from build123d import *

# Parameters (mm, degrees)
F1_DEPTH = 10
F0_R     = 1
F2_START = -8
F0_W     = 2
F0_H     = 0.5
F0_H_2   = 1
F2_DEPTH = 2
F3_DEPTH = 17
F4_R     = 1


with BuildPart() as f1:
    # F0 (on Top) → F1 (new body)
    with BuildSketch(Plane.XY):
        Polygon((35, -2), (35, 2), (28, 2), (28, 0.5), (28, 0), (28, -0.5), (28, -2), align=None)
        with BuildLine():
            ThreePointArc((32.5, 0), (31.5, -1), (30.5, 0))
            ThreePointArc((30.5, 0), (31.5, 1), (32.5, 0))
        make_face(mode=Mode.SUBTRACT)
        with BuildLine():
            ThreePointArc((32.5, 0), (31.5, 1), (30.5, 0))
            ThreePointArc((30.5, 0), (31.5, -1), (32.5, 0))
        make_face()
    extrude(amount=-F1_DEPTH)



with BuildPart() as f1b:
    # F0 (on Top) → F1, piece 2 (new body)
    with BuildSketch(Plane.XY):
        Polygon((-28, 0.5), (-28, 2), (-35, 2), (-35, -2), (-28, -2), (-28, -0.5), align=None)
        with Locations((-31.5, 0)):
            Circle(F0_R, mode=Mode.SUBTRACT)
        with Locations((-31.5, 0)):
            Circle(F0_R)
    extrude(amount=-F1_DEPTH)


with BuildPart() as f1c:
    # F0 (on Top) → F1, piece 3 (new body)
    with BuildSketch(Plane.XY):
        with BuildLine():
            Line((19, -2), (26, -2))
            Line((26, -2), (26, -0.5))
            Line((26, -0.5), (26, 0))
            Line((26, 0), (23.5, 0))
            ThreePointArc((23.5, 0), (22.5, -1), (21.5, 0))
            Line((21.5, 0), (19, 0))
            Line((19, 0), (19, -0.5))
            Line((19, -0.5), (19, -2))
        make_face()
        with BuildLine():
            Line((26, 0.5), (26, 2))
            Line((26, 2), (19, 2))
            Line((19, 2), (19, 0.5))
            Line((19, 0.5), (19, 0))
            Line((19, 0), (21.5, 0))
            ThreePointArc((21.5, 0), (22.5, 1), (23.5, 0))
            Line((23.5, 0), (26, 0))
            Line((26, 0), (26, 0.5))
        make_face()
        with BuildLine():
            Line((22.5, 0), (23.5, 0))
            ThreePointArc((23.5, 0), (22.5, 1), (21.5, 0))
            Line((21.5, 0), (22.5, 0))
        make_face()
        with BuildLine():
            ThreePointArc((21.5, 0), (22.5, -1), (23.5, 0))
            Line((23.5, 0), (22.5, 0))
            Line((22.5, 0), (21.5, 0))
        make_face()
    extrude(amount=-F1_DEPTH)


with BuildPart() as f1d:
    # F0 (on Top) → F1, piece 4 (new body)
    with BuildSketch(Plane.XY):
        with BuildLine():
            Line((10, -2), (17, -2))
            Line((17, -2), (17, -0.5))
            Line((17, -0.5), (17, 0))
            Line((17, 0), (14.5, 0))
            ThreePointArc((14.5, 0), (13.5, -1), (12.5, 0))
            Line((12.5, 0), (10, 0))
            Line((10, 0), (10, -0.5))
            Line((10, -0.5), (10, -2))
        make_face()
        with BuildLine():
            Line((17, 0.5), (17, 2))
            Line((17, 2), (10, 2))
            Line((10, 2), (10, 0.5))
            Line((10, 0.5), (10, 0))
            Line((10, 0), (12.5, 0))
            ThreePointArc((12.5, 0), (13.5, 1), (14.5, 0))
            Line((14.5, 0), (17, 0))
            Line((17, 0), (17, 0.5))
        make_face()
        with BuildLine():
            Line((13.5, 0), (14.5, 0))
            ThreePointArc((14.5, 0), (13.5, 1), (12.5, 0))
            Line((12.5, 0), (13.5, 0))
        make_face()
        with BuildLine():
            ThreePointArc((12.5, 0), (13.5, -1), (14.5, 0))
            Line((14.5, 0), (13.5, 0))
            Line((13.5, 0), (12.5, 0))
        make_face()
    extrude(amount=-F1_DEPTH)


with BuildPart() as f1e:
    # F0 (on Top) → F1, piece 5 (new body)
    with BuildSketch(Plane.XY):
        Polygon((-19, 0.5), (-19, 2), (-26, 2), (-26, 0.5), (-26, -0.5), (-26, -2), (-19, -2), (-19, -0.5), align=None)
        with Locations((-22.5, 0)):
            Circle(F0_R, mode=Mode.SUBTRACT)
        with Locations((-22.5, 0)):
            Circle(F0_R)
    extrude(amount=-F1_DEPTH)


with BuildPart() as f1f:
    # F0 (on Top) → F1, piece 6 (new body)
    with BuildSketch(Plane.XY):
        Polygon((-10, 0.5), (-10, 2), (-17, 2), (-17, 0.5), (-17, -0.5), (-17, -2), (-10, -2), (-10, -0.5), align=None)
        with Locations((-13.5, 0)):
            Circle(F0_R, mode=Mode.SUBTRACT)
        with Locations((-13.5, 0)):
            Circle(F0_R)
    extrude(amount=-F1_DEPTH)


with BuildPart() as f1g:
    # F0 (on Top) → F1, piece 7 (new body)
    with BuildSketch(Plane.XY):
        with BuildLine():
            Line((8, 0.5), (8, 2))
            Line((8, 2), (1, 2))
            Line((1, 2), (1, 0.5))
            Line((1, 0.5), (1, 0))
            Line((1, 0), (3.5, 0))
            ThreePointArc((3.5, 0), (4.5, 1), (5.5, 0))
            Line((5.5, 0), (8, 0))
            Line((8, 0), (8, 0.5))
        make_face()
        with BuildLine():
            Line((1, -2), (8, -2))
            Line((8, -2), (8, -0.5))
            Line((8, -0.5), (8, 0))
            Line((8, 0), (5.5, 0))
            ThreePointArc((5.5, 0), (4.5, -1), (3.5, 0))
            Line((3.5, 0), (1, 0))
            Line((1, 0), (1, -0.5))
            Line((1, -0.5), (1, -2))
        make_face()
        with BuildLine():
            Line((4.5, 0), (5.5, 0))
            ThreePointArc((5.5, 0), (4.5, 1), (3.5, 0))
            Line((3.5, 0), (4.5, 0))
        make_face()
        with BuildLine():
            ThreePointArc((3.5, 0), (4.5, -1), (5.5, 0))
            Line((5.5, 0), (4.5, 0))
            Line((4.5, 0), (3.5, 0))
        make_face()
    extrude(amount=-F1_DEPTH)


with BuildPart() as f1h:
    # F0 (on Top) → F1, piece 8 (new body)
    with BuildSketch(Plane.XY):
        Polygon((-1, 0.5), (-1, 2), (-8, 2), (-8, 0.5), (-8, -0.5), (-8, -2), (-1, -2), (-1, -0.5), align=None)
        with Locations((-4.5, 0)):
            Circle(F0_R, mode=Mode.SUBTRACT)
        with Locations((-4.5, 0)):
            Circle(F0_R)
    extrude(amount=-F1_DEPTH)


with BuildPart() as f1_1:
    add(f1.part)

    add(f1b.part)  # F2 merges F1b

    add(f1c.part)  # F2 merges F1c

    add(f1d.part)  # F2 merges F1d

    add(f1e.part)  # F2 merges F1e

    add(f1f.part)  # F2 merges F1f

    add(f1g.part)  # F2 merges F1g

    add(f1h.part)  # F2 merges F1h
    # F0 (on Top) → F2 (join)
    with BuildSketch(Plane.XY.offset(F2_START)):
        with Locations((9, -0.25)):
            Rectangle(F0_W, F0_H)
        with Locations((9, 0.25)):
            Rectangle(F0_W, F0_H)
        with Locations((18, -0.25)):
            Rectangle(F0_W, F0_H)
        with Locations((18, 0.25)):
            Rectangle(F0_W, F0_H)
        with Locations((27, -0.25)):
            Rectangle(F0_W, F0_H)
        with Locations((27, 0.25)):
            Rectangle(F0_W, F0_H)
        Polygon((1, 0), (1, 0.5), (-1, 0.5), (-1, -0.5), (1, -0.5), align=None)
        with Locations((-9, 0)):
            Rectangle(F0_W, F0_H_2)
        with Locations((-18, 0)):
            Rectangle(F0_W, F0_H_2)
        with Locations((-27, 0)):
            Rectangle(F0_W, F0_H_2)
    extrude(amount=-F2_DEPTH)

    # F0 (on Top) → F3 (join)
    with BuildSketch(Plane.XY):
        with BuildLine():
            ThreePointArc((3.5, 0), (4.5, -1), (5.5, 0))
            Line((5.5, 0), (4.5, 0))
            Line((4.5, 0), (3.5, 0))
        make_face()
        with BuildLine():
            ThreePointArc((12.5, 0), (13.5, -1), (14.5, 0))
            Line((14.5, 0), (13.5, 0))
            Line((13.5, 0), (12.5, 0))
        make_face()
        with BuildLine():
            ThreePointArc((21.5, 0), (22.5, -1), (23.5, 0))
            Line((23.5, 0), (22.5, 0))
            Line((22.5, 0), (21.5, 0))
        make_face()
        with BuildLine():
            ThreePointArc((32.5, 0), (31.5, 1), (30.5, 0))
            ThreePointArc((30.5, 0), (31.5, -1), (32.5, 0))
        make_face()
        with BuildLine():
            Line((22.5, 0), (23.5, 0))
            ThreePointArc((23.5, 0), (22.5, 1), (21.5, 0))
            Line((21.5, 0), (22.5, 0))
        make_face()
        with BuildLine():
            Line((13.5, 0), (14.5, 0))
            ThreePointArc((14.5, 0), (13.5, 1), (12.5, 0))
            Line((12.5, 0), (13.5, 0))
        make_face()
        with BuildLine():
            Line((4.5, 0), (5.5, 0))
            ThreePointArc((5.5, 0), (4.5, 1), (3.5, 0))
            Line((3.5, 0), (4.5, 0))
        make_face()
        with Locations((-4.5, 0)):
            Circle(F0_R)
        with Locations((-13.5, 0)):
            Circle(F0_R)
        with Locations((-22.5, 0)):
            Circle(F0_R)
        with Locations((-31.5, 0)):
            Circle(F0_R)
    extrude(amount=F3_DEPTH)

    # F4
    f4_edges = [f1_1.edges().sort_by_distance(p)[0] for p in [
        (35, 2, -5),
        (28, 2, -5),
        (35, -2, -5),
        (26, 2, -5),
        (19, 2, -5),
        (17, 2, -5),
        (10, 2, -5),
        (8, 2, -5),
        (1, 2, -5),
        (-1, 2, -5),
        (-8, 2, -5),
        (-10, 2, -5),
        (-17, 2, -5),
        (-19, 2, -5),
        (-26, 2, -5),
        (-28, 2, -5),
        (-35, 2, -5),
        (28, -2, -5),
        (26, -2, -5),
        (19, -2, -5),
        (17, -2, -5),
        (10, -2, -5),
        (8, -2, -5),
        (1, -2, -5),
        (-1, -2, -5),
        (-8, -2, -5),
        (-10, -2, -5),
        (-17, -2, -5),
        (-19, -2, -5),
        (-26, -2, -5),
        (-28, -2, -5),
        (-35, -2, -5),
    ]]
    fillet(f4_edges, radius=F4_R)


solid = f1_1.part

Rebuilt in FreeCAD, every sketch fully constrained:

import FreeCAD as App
import Part
import Sketcher
from FreeCAD import Vector


def edges_at(feature, points):
    """Names of the edges that pass closest to the given points."""
    edges = feature.Shape.Edges
    near = lambda p: min(range(len(edges)), key=lambda i: edges[i].distToShape(Part.Vertex(*p))[0])
    return sorted({f"Edge{near(p) + 1}" for p in points})


def add_polygon(sketch, points):
    """Adds a closed chain of lines whose ends are joined by coincident constraints."""
    first, n = sketch.GeometryCount, len(points)
    for a, b in zip(points, points[1:] + points[:1]):
        sketch.addGeometry(Part.LineSegment(App.Vector(*a, 0), App.Vector(*b, 0)), False)
    for i in range(n):
        sketch.addConstraint(Sketcher.Constraint("Coincident", first + i, 2, first + (i + 1) % n, 1))

doc = App.newDocument("Part")
body = doc.addObject("PartDesign::Body", "Body")

sketch1 = body.newObject("Sketcher::SketchObject", "Sketch")
sketch1.AttachmentSupport = (doc.getObject("XY_Plane"), [""])
sketch1.MapMode = "FlatFace"
add_polygon(sketch1, [(35, -2), (35, 2), (28, 2), (28, -2)])
sketch1.addConstraint(Sketcher.Constraint("Vertical", 0))
sketch1.addConstraint(Sketcher.Constraint("Horizontal", 1))
sketch1.addConstraint(Sketcher.Constraint("Vertical", 2))
sketch1.addConstraint(Sketcher.Constraint("Horizontal", 3))
sketch1.addConstraint(Sketcher.Constraint("DistanceX", 1, 2, 1, 1, 7.0))
sketch1.addConstraint(Sketcher.Constraint("DistanceY", 0, 1, 0, 2, 4.0))
sketch1.addConstraint(Sketcher.Constraint("DistanceX", -1, 1, 0, 2, 35.0))
sketch1.addConstraint(Sketcher.Constraint("DistanceY", -1, 1, 0, 2, 2.0))
pad1 = body.newObject("PartDesign::Pad", "Pad")
pad1.Profile = sketch1
pad1.Length = 10
pad1.Reversed = True
body2 = doc.addObject("PartDesign::Body", "Body001")

sketch2 = body2.newObject("Sketcher::SketchObject", "Sketch001")
sketch2.AttachmentSupport = (doc.getObject("XY_Plane001"), [""])
sketch2.MapMode = "FlatFace"
add_polygon(sketch2, [(-28, 2), (-35, 2), (-35, -2), (-28, -2)])
sketch2.addConstraint(Sketcher.Constraint("Horizontal", 0))
sketch2.addConstraint(Sketcher.Constraint("Vertical", 1))
sketch2.addConstraint(Sketcher.Constraint("Horizontal", 2))
sketch2.addConstraint(Sketcher.Constraint("Vertical", 3))
sketch2.addConstraint(Sketcher.Constraint("DistanceX", 0, 2, 0, 1, 7.0))
sketch2.addConstraint(Sketcher.Constraint("DistanceY", 1, 2, 1, 1, 4.0))
sketch2.addConstraint(Sketcher.Constraint("DistanceX", 0, 2, -1, 1, 35.0))
sketch2.addConstraint(Sketcher.Constraint("DistanceY", -1, 1, 0, 2, 2.0))
pad2 = body2.newObject("PartDesign::Pad", "Pad001")
pad2.Profile = sketch2
pad2.Length = 10
pad2.Reversed = True
body3 = doc.addObject("PartDesign::Body", "Body002")

sketch3 = body3.newObject("Sketcher::SketchObject", "Sketch002")
sketch3.AttachmentSupport = (doc.getObject("XY_Plane002"), [""])
sketch3.MapMode = "FlatFace"
add_polygon(sketch3, [(19, -2), (26, -2), (26, 2), (19, 2)])
sketch3.addConstraint(Sketcher.Constraint("Horizontal", 0))
sketch3.addConstraint(Sketcher.Constraint("Vertical", 1))
sketch3.addConstraint(Sketcher.Constraint("Horizontal", 2))
sketch3.addConstraint(Sketcher.Constraint("Vertical", 3))
sketch3.addConstraint(Sketcher.Constraint("DistanceX", 0, 1, 0, 2, 7.0))
sketch3.addConstraint(Sketcher.Constraint("DistanceY", 1, 1, 1, 2, 4.0))
sketch3.addConstraint(Sketcher.Constraint("DistanceX", -1, 1, 0, 2, 26.0))
sketch3.addConstraint(Sketcher.Constraint("DistanceY", 0, 2, -1, 1, 2.0))
pad3 = body3.newObject("PartDesign::Pad", "Pad002")
pad3.Profile = sketch3
pad3.Length = 10
pad3.Reversed = True
body4 = doc.addObject("PartDesign::Body", "Body003")

sketch4 = body4.newObject("Sketcher::SketchObject", "Sketch003")
sketch4.AttachmentSupport = (doc.getObject("XY_Plane003"), [""])
sketch4.MapMode = "FlatFace"
add_polygon(sketch4, [(10, -2), (17, -2), (17, 2), (10, 2)])
sketch4.addConstraint(Sketcher.Constraint("Horizontal", 0))
sketch4.addConstraint(Sketcher.Constraint("Vertical", 1))
sketch4.addConstraint(Sketcher.Constraint("Horizontal", 2))
sketch4.addConstraint(Sketcher.Constraint("Vertical", 3))
sketch4.addConstraint(Sketcher.Constraint("DistanceX", 0, 1, 0, 2, 7.0))
sketch4.addConstraint(Sketcher.Constraint("DistanceY", 1, 1, 1, 2, 4.0))
sketch4.addConstraint(Sketcher.Constraint("DistanceX", -1, 1, 0, 2, 17.0))
sketch4.addConstraint(Sketcher.Constraint("DistanceY", 0, 2, -1, 1, 2.0))
pad4 = body4.newObject("PartDesign::Pad", "Pad003")
pad4.Profile = sketch4
pad4.Length = 10
pad4.Reversed = True
body5 = doc.addObject("PartDesign::Body", "Body004")

sketch5 = body5.newObject("Sketcher::SketchObject", "Sketch004")
sketch5.AttachmentSupport = (doc.getObject("XY_Plane004"), [""])
sketch5.MapMode = "FlatFace"
add_polygon(sketch5, [(-19, 2), (-26, 2), (-26, -2), (-19, -2)])
sketch5.addConstraint(Sketcher.Constraint("Horizontal", 0))
sketch5.addConstraint(Sketcher.Constraint("Vertical", 1))
sketch5.addConstraint(Sketcher.Constraint("Horizontal", 2))
sketch5.addConstraint(Sketcher.Constraint("Vertical", 3))
sketch5.addConstraint(Sketcher.Constraint("DistanceX", 0, 2, 0, 1, 7.0))
sketch5.addConstraint(Sketcher.Constraint("DistanceY", 1, 2, 1, 1, 4.0))
sketch5.addConstraint(Sketcher.Constraint("DistanceX", 0, 2, -1, 1, 26.0))
sketch5.addConstraint(Sketcher.Constraint("DistanceY", -1, 1, 0, 2, 2.0))
pad5 = body5.newObject("PartDesign::Pad", "Pad004")
pad5.Profile = sketch5
pad5.Length = 10
pad5.Reversed = True
body6 = doc.addObject("PartDesign::Body", "Body005")

sketch6 = body6.newObject("Sketcher::SketchObject", "Sketch005")
sketch6.AttachmentSupport = (doc.getObject("XY_Plane005"), [""])
sketch6.MapMode = "FlatFace"
add_polygon(sketch6, [(-10, 2), (-17, 2), (-17, -2), (-10, -2)])
sketch6.addConstraint(Sketcher.Constraint("Horizontal", 0))
sketch6.addConstraint(Sketcher.Constraint("Vertical", 1))
sketch6.addConstraint(Sketcher.Constraint("Horizontal", 2))
sketch6.addConstraint(Sketcher.Constraint("Vertical", 3))
sketch6.addConstraint(Sketcher.Constraint("DistanceX", 0, 2, 0, 1, 7.0))
sketch6.addConstraint(Sketcher.Constraint("DistanceY", 1, 2, 1, 1, 4.0))
sketch6.addConstraint(Sketcher.Constraint("DistanceX", 0, 2, -1, 1, 17.0))
sketch6.addConstraint(Sketcher.Constraint("DistanceY", -1, 1, 0, 2, 2.0))
pad6 = body6.newObject("PartDesign::Pad", "Pad005")
pad6.Profile = sketch6
pad6.Length = 10
pad6.Reversed = True
body7 = doc.addObject("PartDesign::Body", "Body006")

sketch7 = body7.newObject("Sketcher::SketchObject", "Sketch006")
sketch7.AttachmentSupport = (doc.getObject("XY_Plane006"), [""])
sketch7.MapMode = "FlatFace"
add_polygon(sketch7, [(8, 2), (1, 2), (1, -2), (8, -2)])
sketch7.addConstraint(Sketcher.Constraint("Horizontal", 0))
sketch7.addConstraint(Sketcher.Constraint("Vertical", 1))
sketch7.addConstraint(Sketcher.Constraint("Horizontal", 2))
sketch7.addConstraint(Sketcher.Constraint("Vertical", 3))
sketch7.addConstraint(Sketcher.Constraint("DistanceX", 0, 2, 0, 1, 7.0))
sketch7.addConstraint(Sketcher.Constraint("DistanceY", 1, 2, 1, 1, 4.0))
sketch7.addConstraint(Sketcher.Constraint("DistanceX", -1, 1, 0, 2, 1.0))
sketch7.addConstraint(Sketcher.Constraint("DistanceY", -1, 1, 0, 2, 2.0))
pad7 = body7.newObject("PartDesign::Pad", "Pad006")
pad7.Profile = sketch7
pad7.Length = 10
pad7.Reversed = True
body8 = doc.addObject("PartDesign::Body", "Body007")

sketch8 = body8.newObject("Sketcher::SketchObject", "Sketch007")
sketch8.AttachmentSupport = (doc.getObject("XY_Plane007"), [""])
sketch8.MapMode = "FlatFace"
add_polygon(sketch8, [(-1, 2), (-8, 2), (-8, -2), (-1, -2)])
sketch8.addConstraint(Sketcher.Constraint("Horizontal", 0))
sketch8.addConstraint(Sketcher.Constraint("Vertical", 1))
sketch8.addConstraint(Sketcher.Constraint("Horizontal", 2))
sketch8.addConstraint(Sketcher.Constraint("Vertical", 3))
sketch8.addConstraint(Sketcher.Constraint("DistanceX", 0, 2, 0, 1, 7.0))
sketch8.addConstraint(Sketcher.Constraint("DistanceY", 1, 2, 1, 1, 4.0))
sketch8.addConstraint(Sketcher.Constraint("DistanceX", 0, 2, -1, 1, 8.0))
sketch8.addConstraint(Sketcher.Constraint("DistanceY", -1, 1, 0, 2, 2.0))
pad8 = body8.newObject("PartDesign::Pad", "Pad007")
pad8.Profile = sketch8
pad8.Length = 10
pad8.Reversed = True
body.AllowCompound = True
doc.recompute()

boolean = body.newObject("PartDesign::Boolean", "Boolean")
boolean.Type = "Fuse"
boolean.addObjects([body2])
doc.recompute()

boolean2 = body.newObject("PartDesign::Boolean", "Boolean001")
boolean2.Type = "Fuse"
boolean2.addObjects([body3])
doc.recompute()

boolean3 = body.newObject("PartDesign::Boolean", "Boolean002")
boolean3.Type = "Fuse"
boolean3.addObjects([body4])
doc.recompute()

boolean4 = body.newObject("PartDesign::Boolean", "Boolean003")
boolean4.Type = "Fuse"
boolean4.addObjects([body5])
doc.recompute()

boolean5 = body.newObject("PartDesign::Boolean", "Boolean004")
boolean5.Type = "Fuse"
boolean5.addObjects([body6])
doc.recompute()

boolean6 = body.newObject("PartDesign::Boolean", "Boolean005")
boolean6.Type = "Fuse"
boolean6.addObjects([body7])
doc.recompute()

boolean7 = body.newObject("PartDesign::Boolean", "Boolean006")
boolean7.Type = "Fuse"
boolean7.addObjects([body8])

sketch9 = body.newObject("Sketcher::SketchObject", "Sketch008")
sketch9.AttachmentSupport = (doc.getObject("XY_Plane"), [""])
sketch9.MapMode = "FlatFace"
sketch9.AttachmentOffset = App.Placement(Vector(0, 0, -8), App.Rotation())
add_polygon(sketch9, [(8, -0.5), (10, -0.5), (10, 0.5), (8, 0.5)])
add_polygon(sketch9, [(17, -0.5), (19, -0.5), (19, 0.5), (17, 0.5)])
add_polygon(sketch9, [(26, -0.5), (28, -0.5), (28, 0.5), (26, 0.5)])
add_polygon(sketch9, [(1, 0.5), (-1, 0.5), (-1, -0.5), (1, -0.5)])
add_polygon(sketch9, [(-10, 0.5), (-10, -0.5), (-8, -0.5), (-8, 0.5)])
add_polygon(sketch9, [(-19, 0.5), (-19, -0.5), (-17, -0.5), (-17, 0.5)])
add_polygon(sketch9, [(-28, 0.5), (-28, -0.5), (-26, -0.5), (-26, 0.5)])
sketch9.addConstraint(Sketcher.Constraint("Horizontal", 0))
sketch9.addConstraint(Sketcher.Constraint("Vertical", 1))
sketch9.addConstraint(Sketcher.Constraint("Horizontal", 2))
sketch9.addConstraint(Sketcher.Constraint("Vertical", 3))
sketch9.addConstraint(Sketcher.Constraint("Horizontal", 4))
sketch9.addConstraint(Sketcher.Constraint("Vertical", 5))
sketch9.addConstraint(Sketcher.Constraint("Horizontal", 6))
sketch9.addConstraint(Sketcher.Constraint("Vertical", 7))
sketch9.addConstraint(Sketcher.Constraint("Horizontal", 8))
sketch9.addConstraint(Sketcher.Constraint("Vertical", 9))
sketch9.addConstraint(Sketcher.Constraint("Horizontal", 10))
sketch9.addConstraint(Sketcher.Constraint("Vertical", 11))
sketch9.addConstraint(Sketcher.Constraint("Horizontal", 12))
sketch9.addConstraint(Sketcher.Constraint("Vertical", 13))
sketch9.addConstraint(Sketcher.Constraint("Horizontal", 14))
sketch9.addConstraint(Sketcher.Constraint("Vertical", 15))
sketch9.addConstraint(Sketcher.Constraint("Vertical", 16))
sketch9.addConstraint(Sketcher.Constraint("Horizontal", 17))
sketch9.addConstraint(Sketcher.Constraint("Vertical", 18))
sketch9.addConstraint(Sketcher.Constraint("Horizontal", 19))
sketch9.addConstraint(Sketcher.Constraint("Vertical", 20))
sketch9.addConstraint(Sketcher.Constraint("Horizontal", 21))
sketch9.addConstraint(Sketcher.Constraint("Vertical", 22))
sketch9.addConstraint(Sketcher.Constraint("Horizontal", 23))
sketch9.addConstraint(Sketcher.Constraint("Vertical", 24))
sketch9.addConstraint(Sketcher.Constraint("Horizontal", 25))
sketch9.addConstraint(Sketcher.Constraint("Vertical", 26))
sketch9.addConstraint(Sketcher.Constraint("Horizontal", 27))
sketch9.addConstraint(Sketcher.Constraint("Symmetric", 12, 2, 14, 2, -1, 1))
sketch9.addConstraint(Sketcher.Constraint("Symmetric", 1, 2, 16, 2, -1, 1))
sketch9.addConstraint(Sketcher.Constraint("Symmetric", 3, 2, 18, 2, -1, 1))
sketch9.addConstraint(Sketcher.Constraint("Symmetric", 5, 2, 20, 2, -1, 1))
sketch9.addConstraint(Sketcher.Constraint("Symmetric", 7, 2, 22, 2, -1, 1))
sketch9.addConstraint(Sketcher.Constraint("Symmetric", 9, 2, 24, 2, -1, 1))
sketch9.addConstraint(Sketcher.Constraint("Symmetric", 11, 2, 26, 2, -1, 1))
sketch9.addConstraint(Sketcher.Constraint("Horizontal", 3, 2, 4, 2))
sketch9.addConstraint(Sketcher.Constraint("Horizontal", 2, 2, 5, 2))
sketch9.addConstraint(Sketcher.Constraint("Horizontal", 7, 2, 8, 2))
sketch9.addConstraint(Sketcher.Constraint("Horizontal", 6, 2, 9, 2))
sketch9.addConstraint(Sketcher.Constraint("Horizontal", 10, 2, 12, 2))
sketch9.addConstraint(Sketcher.Constraint("Horizontal", 11, 2, 13, 2))
sketch9.addConstraint(Sketcher.Constraint("Equal", 2, 4))
sketch9.addConstraint(Sketcher.Constraint("Equal", 6, 8))
sketch9.addConstraint(Sketcher.Constraint("Equal", 10, 12))
sketch9.addConstraint(Sketcher.Constraint("DistanceX", 0, 1, 0, 2, 2.0))
sketch9.addConstraint(Sketcher.Constraint("DistanceY", 1, 1, 1, 2, 1.0))
sketch9.addConstraint(Sketcher.Constraint("DistanceX", -1, 1, 0, 2, 10.0))
sketch9.addConstraint(Sketcher.Constraint("DistanceX", -1, 1, 4, 2, 19.0))
sketch9.addConstraint(Sketcher.Constraint("DistanceX", -1, 1, 8, 2, 28.0))
pad9 = body.newObject("PartDesign::Pad", "Pad008")
pad9.Profile = sketch9
pad9.Length = 2
pad9.Reversed = True

sketch10 = body.newObject("Sketcher::SketchObject", "Sketch009")
sketch10.AttachmentSupport = (doc.getObject("XY_Plane"), [""])
sketch10.MapMode = "FlatFace"
sketch10.addGeometry(Part.Circle(Vector(4.5, 0, 0), Vector(0, 0, 1), 1), False)
sketch10.addGeometry(Part.Circle(Vector(13.5, 0, 0), Vector(0, 0, 1), 1), False)
sketch10.addGeometry(Part.Circle(Vector(22.5, 0, 0), Vector(0, 0, 1), 1), False)
sketch10.addGeometry(Part.Circle(Vector(31.5, 0, 0), Vector(0, 0, 1), 1), False)
sketch10.addGeometry(Part.Circle(Vector(-4.5, 0, 0), Vector(0, 0, 1), 1), False)
sketch10.addGeometry(Part.Circle(Vector(-13.5, 0, 0), Vector(0, 0, 1), 1), False)
sketch10.addGeometry(Part.Circle(Vector(-22.5, 0, 0), Vector(0, 0, 1), 1), False)
sketch10.addGeometry(Part.Circle(Vector(-31.5, 0, 0), Vector(0, 0, 1), 1), False)
sketch10.addConstraint(Sketcher.Constraint("Equal", 0, 1))
sketch10.addConstraint(Sketcher.Constraint("Equal", 1, 2))
sketch10.addConstraint(Sketcher.Constraint("Equal", 2, 3))
sketch10.addConstraint(Sketcher.Constraint("Equal", 3, 4))
sketch10.addConstraint(Sketcher.Constraint("Equal", 4, 5))
sketch10.addConstraint(Sketcher.Constraint("Equal", 5, 6))
sketch10.addConstraint(Sketcher.Constraint("Equal", 6, 7))
sketch10.addConstraint(Sketcher.Constraint("Symmetric", 0, 3, 4, 3, -1, 1))
sketch10.addConstraint(Sketcher.Constraint("Symmetric", 1, 3, 5, 3, -1, 1))
sketch10.addConstraint(Sketcher.Constraint("Symmetric", 2, 3, 6, 3, -1, 1))
sketch10.addConstraint(Sketcher.Constraint("Symmetric", 3, 3, 7, 3, -1, 1))
sketch10.addConstraint(Sketcher.Constraint("PointOnObject", 0, 3, -1))
sketch10.addConstraint(Sketcher.Constraint("PointOnObject", 1, 3, -1))
sketch10.addConstraint(Sketcher.Constraint("PointOnObject", 2, 3, -1))
sketch10.addConstraint(Sketcher.Constraint("PointOnObject", 3, 3, -1))
sketch10.addConstraint(Sketcher.Constraint("Diameter", 0, 2.0))
sketch10.addConstraint(Sketcher.Constraint("DistanceX", 0, 3, 1, 3, 9.0))
sketch10.addConstraint(Sketcher.Constraint("DistanceX", 1, 3, 2, 3, 9.0))
sketch10.addConstraint(Sketcher.Constraint("DistanceX", 2, 3, 3, 3, 9.0))
sketch10.addConstraint(Sketcher.Constraint("DistanceX", 4, 3, 0, 3, 9.0))
pad10 = body.newObject("PartDesign::Pad", "Pad009")
pad10.Profile = sketch10
pad10.Length = 17
doc.recompute()

fillet = body.newObject("PartDesign::Fillet", "Fillet")
fillet.Base = (pad10, edges_at(pad10, [
    (35, 2, -5),
    (28, 2, -5),
    (35, -2, -5),
    (26, 2, -5),
    (19, 2, -5),
    (17, 2, -5),
    (10, 2, -5),
    (8, 2, -5),
    (1, 2, -5),
    (-1, 2, -5),
    (-8, 2, -5),
    (-10, 2, -5),
    (-17, 2, -5),
    (-19, 2, -5),
    (-26, 2, -5),
    (-28, 2, -5),
    (-35, 2, -5),
    (28, -2, -5),
    (26, -2, -5),
    (19, -2, -5),
    (17, -2, -5),
    (10, -2, -5),
    (8, -2, -5),
    (1, -2, -5),
    (-1, -2, -5),
    (-8, -2, -5),
    (-10, -2, -5),
    (-17, -2, -5),
    (-19, -2, -5),
    (-26, -2, -5),
    (-28, -2, -5),
    (-35, -2, -5),
]))
fillet.Radius = 1

doc.recompute()
